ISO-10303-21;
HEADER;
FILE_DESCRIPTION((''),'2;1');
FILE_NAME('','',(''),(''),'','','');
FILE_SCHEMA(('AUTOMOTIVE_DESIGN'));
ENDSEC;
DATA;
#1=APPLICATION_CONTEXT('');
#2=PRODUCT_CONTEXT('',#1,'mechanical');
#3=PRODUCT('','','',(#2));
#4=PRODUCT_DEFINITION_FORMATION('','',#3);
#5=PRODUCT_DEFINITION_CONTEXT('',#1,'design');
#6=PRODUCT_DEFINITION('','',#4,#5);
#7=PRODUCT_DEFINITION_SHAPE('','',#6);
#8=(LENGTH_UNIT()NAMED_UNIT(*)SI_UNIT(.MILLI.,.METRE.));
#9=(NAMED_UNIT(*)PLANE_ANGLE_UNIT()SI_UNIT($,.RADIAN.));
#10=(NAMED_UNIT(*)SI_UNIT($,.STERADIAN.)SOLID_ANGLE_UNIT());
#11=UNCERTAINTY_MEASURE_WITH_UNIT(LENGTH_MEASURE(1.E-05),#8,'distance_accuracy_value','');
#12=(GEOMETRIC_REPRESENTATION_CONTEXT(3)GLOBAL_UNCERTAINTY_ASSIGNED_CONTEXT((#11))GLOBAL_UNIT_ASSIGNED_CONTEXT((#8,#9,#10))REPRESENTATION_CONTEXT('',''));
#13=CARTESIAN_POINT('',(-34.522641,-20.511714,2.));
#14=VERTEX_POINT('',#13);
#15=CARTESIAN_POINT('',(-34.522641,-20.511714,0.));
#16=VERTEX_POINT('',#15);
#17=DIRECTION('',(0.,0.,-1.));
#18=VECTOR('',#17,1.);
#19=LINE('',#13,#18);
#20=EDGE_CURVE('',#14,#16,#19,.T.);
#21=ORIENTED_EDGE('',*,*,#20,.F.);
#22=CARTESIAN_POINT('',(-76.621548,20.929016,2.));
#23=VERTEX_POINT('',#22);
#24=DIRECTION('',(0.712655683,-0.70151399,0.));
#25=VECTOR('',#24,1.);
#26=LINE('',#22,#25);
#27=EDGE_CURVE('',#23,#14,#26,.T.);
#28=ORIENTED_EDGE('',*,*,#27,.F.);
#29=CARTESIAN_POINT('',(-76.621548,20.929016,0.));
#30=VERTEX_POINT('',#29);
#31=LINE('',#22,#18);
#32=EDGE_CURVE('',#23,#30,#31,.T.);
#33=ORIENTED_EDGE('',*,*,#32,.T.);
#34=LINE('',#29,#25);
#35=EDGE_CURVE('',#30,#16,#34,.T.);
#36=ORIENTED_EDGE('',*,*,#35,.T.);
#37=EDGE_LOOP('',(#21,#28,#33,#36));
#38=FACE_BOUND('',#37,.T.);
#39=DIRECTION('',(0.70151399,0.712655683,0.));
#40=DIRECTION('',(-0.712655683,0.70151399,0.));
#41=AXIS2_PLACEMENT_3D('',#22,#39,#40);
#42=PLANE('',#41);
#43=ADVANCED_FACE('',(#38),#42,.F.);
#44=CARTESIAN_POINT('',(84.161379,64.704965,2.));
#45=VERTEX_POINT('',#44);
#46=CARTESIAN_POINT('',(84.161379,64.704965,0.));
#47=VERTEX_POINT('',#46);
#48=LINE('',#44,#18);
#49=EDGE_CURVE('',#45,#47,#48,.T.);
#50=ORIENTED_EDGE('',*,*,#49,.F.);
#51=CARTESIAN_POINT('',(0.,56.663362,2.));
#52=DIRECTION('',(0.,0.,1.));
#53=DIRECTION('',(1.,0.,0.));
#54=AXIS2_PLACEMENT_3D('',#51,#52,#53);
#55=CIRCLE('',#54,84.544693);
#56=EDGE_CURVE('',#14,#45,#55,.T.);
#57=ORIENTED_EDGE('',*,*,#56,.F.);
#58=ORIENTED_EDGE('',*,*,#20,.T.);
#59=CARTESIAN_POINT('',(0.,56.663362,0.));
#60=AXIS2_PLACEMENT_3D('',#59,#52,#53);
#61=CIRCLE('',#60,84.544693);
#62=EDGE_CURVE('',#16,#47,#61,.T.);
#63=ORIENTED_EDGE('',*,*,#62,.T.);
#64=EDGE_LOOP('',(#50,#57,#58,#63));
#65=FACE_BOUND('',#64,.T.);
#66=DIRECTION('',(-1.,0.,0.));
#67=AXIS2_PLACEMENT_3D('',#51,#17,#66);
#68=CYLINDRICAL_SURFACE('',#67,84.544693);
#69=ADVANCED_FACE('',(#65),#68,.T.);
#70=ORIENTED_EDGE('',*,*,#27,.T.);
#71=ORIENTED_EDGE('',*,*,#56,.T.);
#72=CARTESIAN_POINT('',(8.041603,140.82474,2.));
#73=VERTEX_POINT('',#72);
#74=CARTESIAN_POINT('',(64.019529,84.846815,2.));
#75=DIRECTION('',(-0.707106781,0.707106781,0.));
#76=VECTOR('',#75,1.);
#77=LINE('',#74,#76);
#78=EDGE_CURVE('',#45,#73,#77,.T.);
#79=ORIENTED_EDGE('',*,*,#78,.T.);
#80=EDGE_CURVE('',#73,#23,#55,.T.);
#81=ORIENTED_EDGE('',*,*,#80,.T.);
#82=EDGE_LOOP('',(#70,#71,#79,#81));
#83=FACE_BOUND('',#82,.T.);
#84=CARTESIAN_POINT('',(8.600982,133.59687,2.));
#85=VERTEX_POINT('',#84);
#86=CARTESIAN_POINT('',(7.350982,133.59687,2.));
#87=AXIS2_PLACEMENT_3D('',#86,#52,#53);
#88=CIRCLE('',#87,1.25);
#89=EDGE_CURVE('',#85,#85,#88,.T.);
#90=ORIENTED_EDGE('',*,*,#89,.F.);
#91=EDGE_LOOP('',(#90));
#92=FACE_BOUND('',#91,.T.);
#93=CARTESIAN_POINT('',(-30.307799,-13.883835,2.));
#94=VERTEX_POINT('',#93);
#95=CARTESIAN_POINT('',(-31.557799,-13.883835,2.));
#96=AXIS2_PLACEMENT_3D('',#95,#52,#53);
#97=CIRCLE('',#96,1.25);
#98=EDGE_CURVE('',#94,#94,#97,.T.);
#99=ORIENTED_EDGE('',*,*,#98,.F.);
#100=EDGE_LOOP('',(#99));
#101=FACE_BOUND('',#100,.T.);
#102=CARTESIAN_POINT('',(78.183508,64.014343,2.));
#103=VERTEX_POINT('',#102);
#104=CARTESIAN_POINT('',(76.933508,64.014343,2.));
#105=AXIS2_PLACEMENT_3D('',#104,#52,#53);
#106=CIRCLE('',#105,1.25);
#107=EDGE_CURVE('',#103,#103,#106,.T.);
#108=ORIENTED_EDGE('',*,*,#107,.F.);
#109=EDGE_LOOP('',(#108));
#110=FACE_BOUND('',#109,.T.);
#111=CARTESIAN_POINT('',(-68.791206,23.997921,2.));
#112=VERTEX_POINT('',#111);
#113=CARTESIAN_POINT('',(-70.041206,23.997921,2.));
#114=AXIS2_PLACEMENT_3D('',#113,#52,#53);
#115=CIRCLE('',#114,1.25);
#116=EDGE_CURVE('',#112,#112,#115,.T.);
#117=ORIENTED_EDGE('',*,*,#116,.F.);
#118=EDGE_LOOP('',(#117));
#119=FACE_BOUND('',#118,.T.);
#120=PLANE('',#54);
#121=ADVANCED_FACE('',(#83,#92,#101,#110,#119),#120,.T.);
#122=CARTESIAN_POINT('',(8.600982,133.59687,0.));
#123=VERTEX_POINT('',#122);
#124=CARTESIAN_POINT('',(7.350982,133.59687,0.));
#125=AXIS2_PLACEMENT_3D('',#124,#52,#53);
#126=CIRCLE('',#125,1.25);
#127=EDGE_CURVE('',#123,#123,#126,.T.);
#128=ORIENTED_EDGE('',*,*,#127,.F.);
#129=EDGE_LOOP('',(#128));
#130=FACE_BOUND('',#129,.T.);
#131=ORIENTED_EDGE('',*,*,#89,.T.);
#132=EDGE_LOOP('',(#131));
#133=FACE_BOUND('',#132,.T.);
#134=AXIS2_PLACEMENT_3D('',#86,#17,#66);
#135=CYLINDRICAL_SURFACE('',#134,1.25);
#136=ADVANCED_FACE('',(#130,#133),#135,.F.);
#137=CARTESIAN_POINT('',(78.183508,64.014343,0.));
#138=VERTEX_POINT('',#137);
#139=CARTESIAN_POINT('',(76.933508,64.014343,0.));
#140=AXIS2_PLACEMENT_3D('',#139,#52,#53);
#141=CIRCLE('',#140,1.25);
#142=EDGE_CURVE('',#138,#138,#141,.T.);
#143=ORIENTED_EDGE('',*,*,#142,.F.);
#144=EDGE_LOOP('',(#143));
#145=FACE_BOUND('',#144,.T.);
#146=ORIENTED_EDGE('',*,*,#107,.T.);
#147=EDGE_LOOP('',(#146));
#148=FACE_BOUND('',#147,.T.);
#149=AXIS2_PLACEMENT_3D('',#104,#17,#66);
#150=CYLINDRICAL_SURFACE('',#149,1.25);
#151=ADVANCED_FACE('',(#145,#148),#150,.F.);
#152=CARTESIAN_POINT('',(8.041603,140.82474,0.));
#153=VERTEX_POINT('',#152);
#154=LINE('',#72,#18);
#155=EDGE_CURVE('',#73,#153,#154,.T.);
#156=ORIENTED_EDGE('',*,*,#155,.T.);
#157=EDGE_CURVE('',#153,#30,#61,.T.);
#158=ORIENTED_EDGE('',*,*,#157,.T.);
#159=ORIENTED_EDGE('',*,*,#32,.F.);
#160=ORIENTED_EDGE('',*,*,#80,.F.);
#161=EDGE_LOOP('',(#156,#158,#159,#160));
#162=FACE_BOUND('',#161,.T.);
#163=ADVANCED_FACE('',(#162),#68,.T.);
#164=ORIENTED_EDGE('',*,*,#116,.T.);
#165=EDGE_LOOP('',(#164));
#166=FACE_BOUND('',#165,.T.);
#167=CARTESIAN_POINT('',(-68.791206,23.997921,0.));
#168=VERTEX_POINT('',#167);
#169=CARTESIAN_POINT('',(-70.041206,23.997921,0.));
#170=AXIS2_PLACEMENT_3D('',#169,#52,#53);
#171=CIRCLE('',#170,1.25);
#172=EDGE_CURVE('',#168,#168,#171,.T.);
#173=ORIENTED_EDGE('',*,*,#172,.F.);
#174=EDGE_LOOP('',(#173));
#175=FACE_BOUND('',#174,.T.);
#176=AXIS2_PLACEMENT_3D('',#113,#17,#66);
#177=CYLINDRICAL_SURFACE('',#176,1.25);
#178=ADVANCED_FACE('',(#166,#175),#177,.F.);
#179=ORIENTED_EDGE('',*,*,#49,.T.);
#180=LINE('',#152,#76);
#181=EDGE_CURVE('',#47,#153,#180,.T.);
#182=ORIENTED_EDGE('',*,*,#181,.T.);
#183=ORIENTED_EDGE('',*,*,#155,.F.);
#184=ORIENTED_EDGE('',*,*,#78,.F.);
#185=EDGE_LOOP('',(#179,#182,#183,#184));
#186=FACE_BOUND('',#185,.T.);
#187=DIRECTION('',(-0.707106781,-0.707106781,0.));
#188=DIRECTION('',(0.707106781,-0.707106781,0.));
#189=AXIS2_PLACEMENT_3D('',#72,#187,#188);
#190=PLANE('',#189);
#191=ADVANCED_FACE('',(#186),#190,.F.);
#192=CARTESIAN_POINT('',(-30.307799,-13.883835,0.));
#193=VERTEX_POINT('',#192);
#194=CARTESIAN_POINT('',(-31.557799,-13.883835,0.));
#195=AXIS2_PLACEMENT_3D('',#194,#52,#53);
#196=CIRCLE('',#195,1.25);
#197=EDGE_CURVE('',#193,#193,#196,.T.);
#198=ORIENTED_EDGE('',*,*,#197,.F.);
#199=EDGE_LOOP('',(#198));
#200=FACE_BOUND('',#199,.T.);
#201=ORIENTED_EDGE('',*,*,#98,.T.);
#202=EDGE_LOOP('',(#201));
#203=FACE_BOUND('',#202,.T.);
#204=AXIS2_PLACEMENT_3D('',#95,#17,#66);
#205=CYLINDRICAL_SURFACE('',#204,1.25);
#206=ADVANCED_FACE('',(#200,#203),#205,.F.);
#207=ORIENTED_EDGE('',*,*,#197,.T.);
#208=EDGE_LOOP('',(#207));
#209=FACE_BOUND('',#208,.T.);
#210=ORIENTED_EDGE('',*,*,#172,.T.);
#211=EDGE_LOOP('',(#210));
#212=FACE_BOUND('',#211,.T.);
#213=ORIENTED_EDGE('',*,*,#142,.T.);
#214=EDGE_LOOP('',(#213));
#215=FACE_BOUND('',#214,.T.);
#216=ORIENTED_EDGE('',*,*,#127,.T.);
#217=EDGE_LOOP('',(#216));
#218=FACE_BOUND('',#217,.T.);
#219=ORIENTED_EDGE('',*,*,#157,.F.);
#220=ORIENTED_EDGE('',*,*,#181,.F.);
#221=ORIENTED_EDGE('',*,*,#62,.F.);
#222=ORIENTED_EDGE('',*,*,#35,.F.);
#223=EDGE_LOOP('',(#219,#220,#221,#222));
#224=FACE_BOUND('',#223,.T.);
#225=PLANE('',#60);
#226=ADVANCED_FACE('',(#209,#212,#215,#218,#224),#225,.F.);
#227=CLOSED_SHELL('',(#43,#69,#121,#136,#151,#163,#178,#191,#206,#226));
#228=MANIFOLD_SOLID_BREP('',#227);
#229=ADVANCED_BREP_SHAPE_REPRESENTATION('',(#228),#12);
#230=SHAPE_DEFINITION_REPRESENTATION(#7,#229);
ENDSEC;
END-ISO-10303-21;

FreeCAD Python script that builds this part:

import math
import FreeCAD as App
import Part
import Sketcher
from FreeCAD import Vector
Q = App.Units.Quantity

doc = App.newDocument("Part")
body = doc.addObject("PartDesign::Body", "Body")

sketch1 = body.newObject("Sketcher::SketchObject", "Sketch")
sketch1.AttachmentSupport = (doc.getObject("XY_Plane"), [""])
sketch1.MapMode = "FlatFace"
sketch1.addGeometry([
    Part.ArcOfCircle(Part.Circle(Vector(0, 56.7, 0), Vector(0, 0, 1), 84.5), math.radians(-114), math.radians(5)),
    Part.LineSegment(Vector(84.2, 64.7, 0), Vector(8, 140.8, 0)),
    Part.ArcOfCircle(Part.Circle(Vector(0, 56.7, 0), Vector(0, 0, 1), 84.5), math.radians(85), math.radians(205)),
    Part.LineSegment(Vector(-76.6, 20.9, 0), Vector(-34.5, -20.5, 0)),
    Part.Circle(Vector(-31.6, -13.9, 0), Vector(0, 0, 1), 1.2),
    Part.Circle(Vector(-70, 24, 0), Vector(0, 0, 1), 1.2),
    Part.Circle(Vector(76.9, 64, 0), Vector(0, 0, 1), 1.2),
    Part.Circle(Vector(7.4, 133.6, 0), Vector(0, 0, 1), 1.2),
], False)
sketch1.addConstraint([
    Sketcher.Constraint("Coincident", 0, 2, 1, 1),
    Sketcher.Constraint("Coincident", 1, 2, 2, 1),
    Sketcher.Constraint("Coincident", 2, 2, 3, 1),
    Sketcher.Constraint("Coincident", 3, 2, 0, 1),
    Sketcher.Constraint("Coincident", 2, 3, 0, 3),
    Sketcher.Constraint("Equal", 0, 2),
    Sketcher.Constraint("Equal", 4, 5),
    Sketcher.Constraint("Equal", 5, 6),
    Sketcher.Constraint("Equal", 6, 7),
    Sketcher.Constraint("PointOnObject", 0, 3, -2),
    Sketcher.Constraint("Diameter", 4, 2.5),
    Sketcher.Constraint("Angle", 1, Q("135 deg")),
    Sketcher.Constraint("Radius", 0, 84.544693),
    Sketcher.Constraint("DistanceX", 4, 3, -1, 1, 31.557799),
    Sketcher.Constraint("DistanceY", 4, 3, 0, 2, 78.5888),
    Sketcher.Constraint("Distance", 1, 107.649619),
    Sketcher.Constraint("DistanceY", -1, 1, 0, 3, 56.663362),
    Sketcher.Constraint("DistanceY", -1, 1, 5, 3, 23.997921),
    Sketcher.Constraint("DistanceX", -1, 1, 6, 3, 76.933508),
    Sketcher.Constraint("DistanceX", -1, 1, 7, 3, 7.350982),
    Sketcher.Constraint("DistanceY", -1, 1, 7, 3, 133.59687),
    Sketcher.Constraint("DistanceX", 2, 2, -1, 1, 76.621548),
    Sketcher.Constraint("DistanceX", 3, 2, -1, 1, 34.522641),
    Sketcher.Constraint("DistanceY", 0, 3, 6, 3, 7.350982),
    Sketcher.Constraint("DistanceX", 5, 3, 7, 3, 77.392188),
])
pad1 = body.newObject("PartDesign::Pad", "Pad")
pad1.Profile = sketch1
pad1.Length = 2

doc.recompute()
